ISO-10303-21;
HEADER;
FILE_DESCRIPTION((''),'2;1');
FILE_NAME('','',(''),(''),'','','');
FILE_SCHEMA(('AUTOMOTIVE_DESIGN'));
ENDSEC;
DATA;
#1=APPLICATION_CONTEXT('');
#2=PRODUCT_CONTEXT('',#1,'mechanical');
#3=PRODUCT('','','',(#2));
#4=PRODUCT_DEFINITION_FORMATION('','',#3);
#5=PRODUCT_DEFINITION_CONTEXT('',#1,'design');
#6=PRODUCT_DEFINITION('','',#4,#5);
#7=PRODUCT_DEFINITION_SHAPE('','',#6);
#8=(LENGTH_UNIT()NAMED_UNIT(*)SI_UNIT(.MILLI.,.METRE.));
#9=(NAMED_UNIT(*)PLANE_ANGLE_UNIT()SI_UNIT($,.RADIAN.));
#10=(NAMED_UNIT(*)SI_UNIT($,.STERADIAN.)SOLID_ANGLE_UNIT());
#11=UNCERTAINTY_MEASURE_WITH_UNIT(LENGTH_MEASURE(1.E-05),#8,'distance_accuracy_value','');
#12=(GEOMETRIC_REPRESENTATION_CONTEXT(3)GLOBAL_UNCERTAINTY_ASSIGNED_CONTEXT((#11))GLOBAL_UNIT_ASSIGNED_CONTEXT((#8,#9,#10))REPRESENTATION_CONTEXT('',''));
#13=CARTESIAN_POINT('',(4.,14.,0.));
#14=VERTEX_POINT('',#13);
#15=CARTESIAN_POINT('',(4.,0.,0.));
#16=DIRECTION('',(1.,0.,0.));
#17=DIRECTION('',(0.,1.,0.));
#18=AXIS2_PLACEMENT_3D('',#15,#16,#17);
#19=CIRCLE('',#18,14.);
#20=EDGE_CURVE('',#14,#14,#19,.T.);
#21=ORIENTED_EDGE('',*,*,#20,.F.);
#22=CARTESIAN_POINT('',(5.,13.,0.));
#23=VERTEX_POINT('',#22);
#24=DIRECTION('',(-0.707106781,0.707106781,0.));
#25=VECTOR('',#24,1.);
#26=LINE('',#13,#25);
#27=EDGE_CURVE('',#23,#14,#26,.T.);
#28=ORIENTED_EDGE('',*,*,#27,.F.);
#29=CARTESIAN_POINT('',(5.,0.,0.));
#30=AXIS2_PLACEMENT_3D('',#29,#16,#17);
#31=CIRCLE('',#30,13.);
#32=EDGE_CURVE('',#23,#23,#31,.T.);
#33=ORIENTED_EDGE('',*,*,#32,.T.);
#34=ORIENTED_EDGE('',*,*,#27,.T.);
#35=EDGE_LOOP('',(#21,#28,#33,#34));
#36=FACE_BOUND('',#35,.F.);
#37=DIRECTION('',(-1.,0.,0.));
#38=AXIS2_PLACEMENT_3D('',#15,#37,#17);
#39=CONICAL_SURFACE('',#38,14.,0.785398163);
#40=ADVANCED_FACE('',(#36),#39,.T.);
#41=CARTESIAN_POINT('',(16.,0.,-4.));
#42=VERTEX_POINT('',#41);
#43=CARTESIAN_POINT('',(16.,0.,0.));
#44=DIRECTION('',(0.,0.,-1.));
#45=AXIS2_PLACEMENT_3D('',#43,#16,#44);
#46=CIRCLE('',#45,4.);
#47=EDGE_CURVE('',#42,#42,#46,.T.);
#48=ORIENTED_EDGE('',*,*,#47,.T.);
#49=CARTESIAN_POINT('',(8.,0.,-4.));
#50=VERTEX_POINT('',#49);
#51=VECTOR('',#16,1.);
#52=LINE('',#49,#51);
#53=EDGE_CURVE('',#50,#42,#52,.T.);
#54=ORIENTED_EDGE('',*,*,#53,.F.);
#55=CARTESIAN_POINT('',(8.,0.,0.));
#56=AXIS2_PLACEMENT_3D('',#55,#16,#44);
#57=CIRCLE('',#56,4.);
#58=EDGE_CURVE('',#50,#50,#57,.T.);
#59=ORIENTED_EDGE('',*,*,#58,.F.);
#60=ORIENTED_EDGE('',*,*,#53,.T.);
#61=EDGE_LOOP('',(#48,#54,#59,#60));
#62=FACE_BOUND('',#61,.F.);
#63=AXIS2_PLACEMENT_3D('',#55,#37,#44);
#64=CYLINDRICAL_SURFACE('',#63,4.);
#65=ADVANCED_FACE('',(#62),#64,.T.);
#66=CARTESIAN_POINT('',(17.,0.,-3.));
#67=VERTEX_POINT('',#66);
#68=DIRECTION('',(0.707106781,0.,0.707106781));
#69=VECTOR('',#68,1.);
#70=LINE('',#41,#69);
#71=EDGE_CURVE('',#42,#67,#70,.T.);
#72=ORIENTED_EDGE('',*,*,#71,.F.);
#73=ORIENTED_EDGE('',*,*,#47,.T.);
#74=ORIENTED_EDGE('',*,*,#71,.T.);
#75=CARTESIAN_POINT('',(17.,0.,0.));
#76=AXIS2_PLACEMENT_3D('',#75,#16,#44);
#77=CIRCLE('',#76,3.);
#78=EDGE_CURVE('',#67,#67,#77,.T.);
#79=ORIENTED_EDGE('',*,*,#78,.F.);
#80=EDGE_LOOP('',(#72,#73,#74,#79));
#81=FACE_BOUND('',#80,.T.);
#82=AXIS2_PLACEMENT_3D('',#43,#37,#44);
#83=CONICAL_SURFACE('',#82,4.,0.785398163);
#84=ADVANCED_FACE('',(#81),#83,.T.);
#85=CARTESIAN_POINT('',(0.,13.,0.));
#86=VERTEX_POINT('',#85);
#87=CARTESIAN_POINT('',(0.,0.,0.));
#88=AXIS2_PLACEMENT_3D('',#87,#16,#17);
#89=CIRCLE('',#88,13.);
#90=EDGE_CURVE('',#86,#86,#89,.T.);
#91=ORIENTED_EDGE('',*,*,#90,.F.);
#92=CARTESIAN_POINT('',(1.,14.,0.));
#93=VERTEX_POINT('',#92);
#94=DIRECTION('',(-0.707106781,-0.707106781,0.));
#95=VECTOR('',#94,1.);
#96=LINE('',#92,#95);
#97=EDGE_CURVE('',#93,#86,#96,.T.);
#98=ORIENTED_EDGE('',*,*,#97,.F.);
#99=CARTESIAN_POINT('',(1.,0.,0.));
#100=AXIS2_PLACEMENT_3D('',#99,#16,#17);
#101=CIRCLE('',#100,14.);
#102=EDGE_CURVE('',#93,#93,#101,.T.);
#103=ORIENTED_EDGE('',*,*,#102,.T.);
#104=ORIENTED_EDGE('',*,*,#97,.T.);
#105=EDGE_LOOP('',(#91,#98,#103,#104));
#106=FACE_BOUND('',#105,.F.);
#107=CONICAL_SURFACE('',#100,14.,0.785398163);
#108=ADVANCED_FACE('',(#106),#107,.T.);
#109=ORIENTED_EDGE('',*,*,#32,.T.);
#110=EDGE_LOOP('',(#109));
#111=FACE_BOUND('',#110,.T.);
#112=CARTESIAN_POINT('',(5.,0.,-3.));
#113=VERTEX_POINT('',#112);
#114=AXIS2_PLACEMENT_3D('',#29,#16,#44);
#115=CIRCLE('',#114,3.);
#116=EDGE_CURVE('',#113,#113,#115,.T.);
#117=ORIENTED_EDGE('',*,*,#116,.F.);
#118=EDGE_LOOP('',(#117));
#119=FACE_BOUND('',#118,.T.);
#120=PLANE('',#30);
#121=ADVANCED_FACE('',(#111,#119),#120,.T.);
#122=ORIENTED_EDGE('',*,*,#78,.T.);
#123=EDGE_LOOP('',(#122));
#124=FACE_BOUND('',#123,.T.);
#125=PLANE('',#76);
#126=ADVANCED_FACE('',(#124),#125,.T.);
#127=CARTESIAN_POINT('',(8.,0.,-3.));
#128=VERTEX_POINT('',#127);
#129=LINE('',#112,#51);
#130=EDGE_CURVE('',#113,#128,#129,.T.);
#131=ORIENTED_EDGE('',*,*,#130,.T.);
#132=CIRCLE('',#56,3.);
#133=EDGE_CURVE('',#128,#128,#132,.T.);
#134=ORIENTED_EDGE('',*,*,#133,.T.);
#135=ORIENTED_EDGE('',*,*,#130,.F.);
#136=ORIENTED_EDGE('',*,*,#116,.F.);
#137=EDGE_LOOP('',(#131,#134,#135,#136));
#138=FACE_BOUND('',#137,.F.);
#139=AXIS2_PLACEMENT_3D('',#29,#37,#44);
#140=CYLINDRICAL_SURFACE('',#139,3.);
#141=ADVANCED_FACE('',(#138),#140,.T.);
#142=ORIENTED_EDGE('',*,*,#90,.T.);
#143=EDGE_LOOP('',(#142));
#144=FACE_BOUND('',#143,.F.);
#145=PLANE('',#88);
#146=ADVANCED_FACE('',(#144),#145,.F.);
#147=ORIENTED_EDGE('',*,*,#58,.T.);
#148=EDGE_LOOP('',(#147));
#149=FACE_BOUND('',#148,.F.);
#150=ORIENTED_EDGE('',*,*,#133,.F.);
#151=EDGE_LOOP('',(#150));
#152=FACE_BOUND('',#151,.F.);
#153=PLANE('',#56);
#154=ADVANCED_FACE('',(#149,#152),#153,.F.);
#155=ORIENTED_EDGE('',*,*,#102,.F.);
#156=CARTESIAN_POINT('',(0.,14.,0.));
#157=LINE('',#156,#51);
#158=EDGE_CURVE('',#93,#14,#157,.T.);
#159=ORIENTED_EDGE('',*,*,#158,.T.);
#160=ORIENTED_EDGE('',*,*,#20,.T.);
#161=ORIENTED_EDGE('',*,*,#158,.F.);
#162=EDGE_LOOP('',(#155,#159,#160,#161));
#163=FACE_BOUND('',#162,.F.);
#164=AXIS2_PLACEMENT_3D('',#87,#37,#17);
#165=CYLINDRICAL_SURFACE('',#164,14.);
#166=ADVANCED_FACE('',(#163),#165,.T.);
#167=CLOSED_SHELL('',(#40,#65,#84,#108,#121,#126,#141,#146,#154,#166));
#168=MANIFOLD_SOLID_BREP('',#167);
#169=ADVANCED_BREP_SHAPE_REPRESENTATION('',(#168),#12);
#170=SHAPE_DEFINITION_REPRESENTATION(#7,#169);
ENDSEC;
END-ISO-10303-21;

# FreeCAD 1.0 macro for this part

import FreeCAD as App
import Part
import Sketcher
Q = App.Units.Quantity


def edges_at(feature, points):
    """Names of the edges that pass closest to the given points."""
    edges = feature.Shape.Edges
    near = lambda p: min(range(len(edges)), key=lambda i: edges[i].distToShape(Part.Vertex(*p))[0])
    return sorted({f"Edge{near(p) + 1}" for p in points})

doc = App.newDocument("Part")
body = doc.addObject("PartDesign::Body", "Body")

# Sketch on YZ plane
sketch1 = body.newObject("Sketcher::SketchObject", "Sketch")
sketch1.AttachmentSupport = (doc.getObject("YZ_Plane"), [""])
sketch1.MapMode = "FlatFace"
sketch1.addGeometry(Part.Circle(App.Vector(0, 0, 0), App.Vector(0, 0, 1), 14), False)
sketch1.addConstraint(Sketcher.Constraint("Coincident", 0, 3, -1, 1))
sketch1.addConstraint(Sketcher.Constraint("Diameter", 0, Q("28 mm")))
pad1 = body.newObject("PartDesign::Pad", "Pad")
pad1.Profile = sketch1
pad1.Length = 5

# Sketch on YZ plane
sketch2 = body.newObject("Sketcher::SketchObject", "Sketch001")
sketch2.AttachmentSupport = (doc.getObject("YZ_Plane"), [""])
sketch2.MapMode = "FlatFace"
sketch2.AttachmentOffset = App.Placement(App.Vector(0, 0, 5), App.Rotation())
sketch2.addGeometry(Part.Circle(App.Vector(0, 0, 0), App.Vector(0, 0, 1), 3), False)
sketch2.addConstraint(Sketcher.Constraint("Coincident", 0, 3, -1, 1))
sketch2.addConstraint(Sketcher.Constraint("Diameter", 0, Q("6 mm")))
pad2 = body.newObject("PartDesign::Pad", "Pad001")
pad2.Profile = sketch2
pad2.Length = 3

# Sketch on YZ plane
sketch3 = body.newObject("Sketcher::SketchObject", "Sketch002")
sketch3.AttachmentSupport = (doc.getObject("YZ_Plane"), [""])
sketch3.MapMode = "FlatFace"
sketch3.AttachmentOffset = App.Placement(App.Vector(0, 0, 8), App.Rotation())
sketch3.addGeometry(Part.Circle(App.Vector(0, 0, 0), App.Vector(0, 0, 1), 4), False)
sketch3.addConstraint(Sketcher.Constraint("Coincident", 0, 3, -1, 1))
sketch3.addConstraint(Sketcher.Constraint("Diameter", 0, Q("8 mm")))
pad3 = body.newObject("PartDesign::Pad", "Pad002")
pad3.Profile = sketch3
pad3.Length = 9
doc.recompute()

chamfer = body.newObject("PartDesign::Chamfer", "Chamfer")
chamfer.Base = (pad3, edges_at(pad3, [(17, 0, 4), (5, -14, 0), (0, -14, 0)]))
chamfer.Size = 1

doc.recompute()
